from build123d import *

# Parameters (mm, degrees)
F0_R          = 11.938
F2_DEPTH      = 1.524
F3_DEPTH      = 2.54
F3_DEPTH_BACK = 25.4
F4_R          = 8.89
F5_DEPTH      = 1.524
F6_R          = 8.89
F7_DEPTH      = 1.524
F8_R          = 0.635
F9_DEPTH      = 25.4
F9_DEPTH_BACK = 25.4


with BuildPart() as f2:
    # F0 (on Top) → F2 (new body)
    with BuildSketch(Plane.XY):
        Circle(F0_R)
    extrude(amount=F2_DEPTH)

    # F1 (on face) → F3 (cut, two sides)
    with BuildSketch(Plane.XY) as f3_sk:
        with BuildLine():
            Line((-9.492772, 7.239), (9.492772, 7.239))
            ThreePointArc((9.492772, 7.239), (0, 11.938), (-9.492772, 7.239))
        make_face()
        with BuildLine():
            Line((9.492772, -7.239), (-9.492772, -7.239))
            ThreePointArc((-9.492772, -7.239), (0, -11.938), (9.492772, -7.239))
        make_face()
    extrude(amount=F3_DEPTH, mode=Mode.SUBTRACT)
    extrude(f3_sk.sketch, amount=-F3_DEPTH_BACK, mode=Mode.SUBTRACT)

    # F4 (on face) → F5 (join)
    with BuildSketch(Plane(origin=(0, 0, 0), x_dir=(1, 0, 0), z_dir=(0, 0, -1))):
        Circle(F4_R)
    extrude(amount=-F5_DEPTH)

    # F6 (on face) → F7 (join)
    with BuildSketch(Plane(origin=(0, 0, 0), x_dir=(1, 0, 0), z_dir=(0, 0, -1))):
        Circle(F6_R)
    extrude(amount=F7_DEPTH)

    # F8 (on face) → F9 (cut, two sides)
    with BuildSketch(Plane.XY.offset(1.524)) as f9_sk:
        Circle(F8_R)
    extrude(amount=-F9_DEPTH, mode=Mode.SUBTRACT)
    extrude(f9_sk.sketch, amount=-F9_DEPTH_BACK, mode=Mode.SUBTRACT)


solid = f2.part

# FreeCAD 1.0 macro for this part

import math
import FreeCAD as App
import Part
import Sketcher

V = App.Vector
Q = App.Units.Quantity

doc = App.newDocument("Part")
params = doc.addObject("Spreadsheet::Sheet", "Params")
for row, (alias, value) in enumerate([
    ("sketch1_diameter", "0.94 in"),
    ("pad1_length", "0.06 in"),
    ("sketch2_radius", "0.47 in"),
    ("sketch3_diameter", "0.7 in"),
    ("pad2_length", "0.06 in"),
    ("sketch4_diameter", "0.7 in"),
    ("pad3_length", "0.06 in"),
    ("sketch5_diameter", "0.05 in"),
    ("pocket2_length", "1 in"),
    ("pocket3_length", "1 in"),
], start=1):
    params.set(f"A{row}", alias)
    params.set(f"B{row}", "=" + value)
    params.setAlias(f"B{row}", alias)

body = doc.addObject("PartDesign::Body", "Body")

# Sketch on XY plane
sketch1 = body.newObject("Sketcher::SketchObject", "Sketch")
sketch1.AttachmentSupport = (doc.getObject("XY_Plane"), [""])
sketch1.MapMode = "FlatFace"
sketch1.addGeometry(Part.Circle(V(0, 0, 0), V(0, 0, 1), 12), False)
sketch1.addConstraint(Sketcher.Constraint("Coincident", 0, 3, -1, 1))
sketch1.addConstraint(Sketcher.Constraint("Diameter", 0, Q("0.94 in")))
sketch1.setExpression("Constraints[1]", "Params.sketch1_diameter")
pad1 = body.newObject("PartDesign::Pad", "Pad")
pad1.Profile = sketch1
pad1.setExpression("Length", "Params.pad1_length")

# Sketch on XY plane
sketch2 = body.newObject("Sketcher::SketchObject", "Sketch001")
sketch2.AttachmentSupport = (doc.getObject("XY_Plane"), [""])
sketch2.MapMode = "FlatFace"
sketch2.addGeometry(Part.LineSegment(V(-9, 7, 0), V(9, 7, 0)), False)
sketch2.addGeometry(Part.ArcOfCircle(Part.Circle(V(0, 0, 0), V(0, 0, 1), 12), math.radians(37), math.radians(143)), False)
sketch2.addGeometry(Part.LineSegment(V(9, -7, 0), V(-9, -7, 0)), False)
sketch2.addGeometry(Part.ArcOfCircle(Part.Circle(V(0, 0, 0), V(0, 0, 1), 12), math.radians(-143), math.radians(-37)), False)
sketch2.addConstraint(Sketcher.Constraint("Coincident", 0, 1, 1, 2))
sketch2.addConstraint(Sketcher.Constraint("Coincident", 1, 1, 0, 2))
sketch2.addConstraint(Sketcher.Constraint("Coincident", 2, 1, 3, 2))
sketch2.addConstraint(Sketcher.Constraint("Coincident", 3, 1, 2, 2))
sketch2.addConstraint(Sketcher.Constraint("Horizontal", 0))
sketch2.addConstraint(Sketcher.Constraint("Horizontal", 2))
sketch2.addConstraint(Sketcher.Constraint("Coincident", 1, 3, -1, 1))
sketch2.addConstraint(Sketcher.Constraint("Coincident", 3, 3, -1, 1))
sketch2.addConstraint(Sketcher.Constraint("Equal", 1, 3))
sketch2.addConstraint(Sketcher.Constraint("Vertical", 1, 1, 2, 1))
sketch2.addConstraint(Sketcher.Constraint("Radius", 1, Q("0.47 in")))
sketch2.addConstraint(Sketcher.Constraint("DistanceY", 2, 1, 1, 1, Q("0.57 in")))
sketch2.setExpression("Constraints[10]", "Params.sketch2_radius")
pocket1 = body.newObject("PartDesign::Pocket", "Pocket")
pocket1.Profile = sketch2
pocket1.Type = "ThroughAll"
pocket1.Midplane = True

# Sketch on XY plane
sketch3 = body.newObject("Sketcher::SketchObject", "Sketch002")
sketch3.AttachmentSupport = (doc.getObject("XY_Plane"), [""])
sketch3.MapMode = "FlatFace"
sketch3.addGeometry(Part.Circle(V(0, 0, 0), V(0, 0, 1), 9), False)
sketch3.addConstraint(Sketcher.Constraint("Coincident", 0, 3, -1, 1))
sketch3.addConstraint(Sketcher.Constraint("Diameter", 0, Q("0.7 in")))
sketch3.setExpression("Constraints[1]", "Params.sketch3_diameter")
pad2 = body.newObject("PartDesign::Pad", "Pad001")
pad2.Profile = sketch3
pad2.setExpression("Length", "Params.pad2_length")

# Sketch on XY plane
sketch4 = body.newObject("Sketcher::SketchObject", "Sketch003")
sketch4.AttachmentSupport = (doc.getObject("XY_Plane"), [""])
sketch4.MapMode = "FlatFace"
sketch4.addGeometry(Part.Circle(V(0, 0, 0), V(0, 0, 1), 9), False)
sketch4.addConstraint(Sketcher.Constraint("Coincident", 0, 3, -1, 1))
sketch4.addConstraint(Sketcher.Constraint("Diameter", 0, Q("0.7 in")))
sketch4.setExpression("Constraints[1]", "Params.sketch4_diameter")
pad3 = body.newObject("PartDesign::Pad", "Pad002")
pad3.Profile = sketch4
pad3.setExpression("Length", "Params.pad3_length")
pad3.Reversed = True

# Sketch on XY plane
sketch5 = body.newObject("Sketcher::SketchObject", "Sketch004")
sketch5.AttachmentSupport = (doc.getObject("XY_Plane"), [""])
sketch5.MapMode = "FlatFace"
sketch5.AttachmentOffset = App.Placement(V(0, 0, 0.06 * 25.4), App.Rotation())
sketch5.addGeometry(Part.Circle(V(0, 0, 0), V(0, 0, 1), 0.6), False)
sketch5.addConstraint(Sketcher.Constraint("Coincident", 0, 3, -1, 1))
sketch5.addConstraint(Sketcher.Constraint("Diameter", 0, Q("0.05 in")))
sketch5.setExpression("Constraints[1]", "Params.sketch5_diameter")
pocket2 = body.newObject("PartDesign::Pocket", "Pocket001")
pocket2.Profile = sketch5
pocket2.setExpression("Length", "Params.pocket2_length")
pocket3 = body.newObject("PartDesign::Pocket", "Pocket002")
pocket3.Profile = sketch5
pocket3.setExpression("Length", "Params.pocket3_length")

doc.recompute()
